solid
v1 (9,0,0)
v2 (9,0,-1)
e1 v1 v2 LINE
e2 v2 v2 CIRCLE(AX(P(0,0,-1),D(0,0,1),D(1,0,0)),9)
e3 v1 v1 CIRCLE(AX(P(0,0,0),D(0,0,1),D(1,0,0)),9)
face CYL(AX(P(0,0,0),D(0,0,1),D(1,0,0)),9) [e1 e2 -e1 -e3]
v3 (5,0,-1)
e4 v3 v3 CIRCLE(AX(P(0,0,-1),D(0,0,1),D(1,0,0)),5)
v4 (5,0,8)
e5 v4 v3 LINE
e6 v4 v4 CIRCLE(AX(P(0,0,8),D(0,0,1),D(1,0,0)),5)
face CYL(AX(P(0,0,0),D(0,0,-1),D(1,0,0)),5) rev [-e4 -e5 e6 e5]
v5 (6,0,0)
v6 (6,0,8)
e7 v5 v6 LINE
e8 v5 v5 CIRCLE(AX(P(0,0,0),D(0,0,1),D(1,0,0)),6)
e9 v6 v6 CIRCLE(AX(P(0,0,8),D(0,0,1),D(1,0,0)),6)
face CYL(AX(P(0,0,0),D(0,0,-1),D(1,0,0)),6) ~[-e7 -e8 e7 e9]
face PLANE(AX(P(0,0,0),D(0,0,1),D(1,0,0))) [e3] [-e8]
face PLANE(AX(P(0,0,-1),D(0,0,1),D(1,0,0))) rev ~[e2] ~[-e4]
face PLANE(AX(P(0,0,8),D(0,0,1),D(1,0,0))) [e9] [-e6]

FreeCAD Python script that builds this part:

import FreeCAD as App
import Part
import Sketcher

V = App.Vector
Q = App.Units.Quantity

doc = App.newDocument("Part")
body = doc.addObject("PartDesign::Body", "Body")

sketch1 = body.newObject("Sketcher::SketchObject", "Sketch")
sketch1.AttachmentSupport = (doc.getObject("XY_Plane"), [""])
sketch1.MapMode = "FlatFace"
sketch1.addGeometry([
    Part.Circle(V(0, 0, 0), V(0, 0, 1), 6),
    Part.Circle(V(0, 0, 0), V(0, 0, 1), 5),
], False)
sketch1.addConstraint([
    Sketcher.Constraint("Coincident", 0, 3, -1, 1),
    Sketcher.Constraint("Coincident", 1, 3, -1, 1),
    Sketcher.Constraint("Diameter", 0, Q("12 mm")),
    Sketcher.Constraint("Diameter", 1, Q("10 mm")),
])
pad1 = body.newObject("PartDesign::Pad", "Pad")
pad1.Profile = sketch1
pad1.Length = 8

sketch2 = body.newObject("Sketcher::SketchObject", "Sketch001")
sketch2.AttachmentSupport = (doc.getObject("XY_Plane"), [""])
sketch2.MapMode = "FlatFace"
sketch2.addGeometry([
    Part.Circle(V(0, 0, 0), V(0, 0, 1), 9),
    Part.Circle(V(0, 0, 0), V(0, 0, 1), 5),
], False)
sketch2.addConstraint([
    Sketcher.Constraint("Coincident", 0, 3, -1, 1),
    Sketcher.Constraint("Coincident", 1, 3, -1, 1),
    Sketcher.Constraint("Diameter", 0, Q("18 mm")),
    Sketcher.Constraint("Diameter", 1, Q("10 mm")),
])
pad2 = body.newObject("PartDesign::Pad", "Pad001")
pad2.Profile = sketch2
pad2.Length = 1
pad2.Reversed = True

doc.recompute()
